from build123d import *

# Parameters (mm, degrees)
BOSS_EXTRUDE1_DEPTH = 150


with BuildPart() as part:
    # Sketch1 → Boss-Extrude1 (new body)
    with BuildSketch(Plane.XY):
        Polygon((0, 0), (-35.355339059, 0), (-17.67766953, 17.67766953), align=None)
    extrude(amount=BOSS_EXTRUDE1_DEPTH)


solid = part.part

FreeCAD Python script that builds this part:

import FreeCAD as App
import Part
import Sketcher
from FreeCAD import Vector


def add_polygon(sketch, points):
    """Adds a closed chain of lines whose ends are joined by coincident constraints."""
    first, n = sketch.GeometryCount, len(points)
    for a, b in zip(points, points[1:] + points[:1]):
        sketch.addGeometry(Part.LineSegment(App.Vector(*a, 0), App.Vector(*b, 0)), False)
    for i in range(n):
        sketch.addConstraint(Sketcher.Constraint("Coincident", first + i, 2, first + (i + 1) % n, 1))

doc = App.newDocument("Part")
params = doc.addObject("Spreadsheet::Sheet", "Params")
for row, (alias, value) in enumerate([
    ("sketch1_length", "25 mm"),
    ("pad1_length", "150 mm"),
], start=1):
    params.set(f"A{row}", alias)
    params.set(f"B{row}", "=" + value)
    params.setAlias(f"B{row}", alias)

body = doc.addObject("PartDesign::Body", "Body")

# Sketch on XY plane
sketch1 = doc.addObject("Sketcher::SketchObject", "Sketch")
body.addObject(sketch1)
sketch1.AttachmentSupport = (doc.XY_Plane, [""])
sketch1.MapMode = "FlatFace"
add_polygon(sketch1, [(-35, 0), (0, 0), (-18, 18)])  # lines 0-2
sketch1.addConstraint(Sketcher.Constraint("Horizontal", 0))
sketch1.addConstraint(Sketcher.Constraint("Coincident", 0, 2, -1, 1))
sketch1.addConstraint(Sketcher.Constraint("Perpendicular", 1, 2))
sketch1.addConstraint(Sketcher.Constraint("Equal", 1, 2))
sketch1.addConstraint(Sketcher.Constraint("Distance", 1, 25.0))
sketch1.setExpression("Constraints[7]", "Params.sketch1_length")
pad1 = doc.addObject("PartDesign::Pad", "Pad")
body.addObject(pad1)
pad1.Profile = sketch1
pad1.setExpression("Length", "Params.pad1_length")

doc.recompute()
